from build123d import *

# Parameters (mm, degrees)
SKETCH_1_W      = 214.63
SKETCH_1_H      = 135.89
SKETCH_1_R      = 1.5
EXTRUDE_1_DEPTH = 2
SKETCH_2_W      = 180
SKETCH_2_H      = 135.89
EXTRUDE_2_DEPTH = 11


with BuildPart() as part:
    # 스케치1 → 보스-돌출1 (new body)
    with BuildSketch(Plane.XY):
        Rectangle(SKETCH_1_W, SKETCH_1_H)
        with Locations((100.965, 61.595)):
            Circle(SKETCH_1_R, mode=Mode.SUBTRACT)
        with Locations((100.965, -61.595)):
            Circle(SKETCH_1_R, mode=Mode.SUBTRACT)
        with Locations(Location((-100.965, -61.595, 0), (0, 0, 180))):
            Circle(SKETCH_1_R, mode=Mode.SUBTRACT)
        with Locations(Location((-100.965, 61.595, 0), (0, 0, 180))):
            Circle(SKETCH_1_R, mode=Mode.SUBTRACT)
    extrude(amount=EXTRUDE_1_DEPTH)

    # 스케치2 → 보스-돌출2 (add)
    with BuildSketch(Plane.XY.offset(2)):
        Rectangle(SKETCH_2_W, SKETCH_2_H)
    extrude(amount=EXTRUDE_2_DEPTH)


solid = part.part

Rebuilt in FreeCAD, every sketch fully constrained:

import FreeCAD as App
import Part
import Sketcher

V = App.Vector
Q = App.Units.Quantity


def add_polygon(sketch, points):
    """Adds a closed chain of lines whose ends are joined by coincident constraints."""
    first, n = sketch.GeometryCount, len(points)
    for a, b in zip(points, points[1:] + points[:1]):
        sketch.addGeometry(Part.LineSegment(App.Vector(*a, 0), App.Vector(*b, 0)), False)
    for i in range(n):
        sketch.addConstraint(Sketcher.Constraint("Coincident", first + i, 2, first + (i + 1) % n, 1))

doc = App.newDocument("Part")
body = doc.addObject("PartDesign::Body", "Body")

# Sketch on XY plane
sketch1 = body.newObject("Sketcher::SketchObject", "Sketch")
sketch1.AttachmentSupport = (doc.getObject("XY_Plane"), [""])
sketch1.MapMode = "FlatFace"
add_polygon(sketch1, [(-107.3, 67.9), (-107.3, -67.9), (107.3, -67.9), (107.3, 67.9)])  # lines 0-3
sketch1.addGeometry(Part.Circle(V(-101, -61.6, 0), V(0, 0, 1), 1.5), False)  # 4
sketch1.addGeometry(Part.Circle(V(101, -61.6, 0), V(0, 0, 1), 1.5), False)  # 5
sketch1.addGeometry(Part.Circle(V(-101, 61.6, 0), V(0, 0, 1), 1.5), False)  # 6
sketch1.addGeometry(Part.Circle(V(101, 61.6, 0), V(0, 0, 1), 1.5), False)  # 7
sketch1.addConstraint([
    Sketcher.Constraint("Vertical", 0),
    Sketcher.Constraint("Horizontal", 1),
    Sketcher.Constraint("Vertical", 2),
    Sketcher.Constraint("Horizontal", 3),
    Sketcher.Constraint("Equal", 4, 5),
    Sketcher.Constraint("Equal", 5, 6),
    Sketcher.Constraint("Equal", 6, 7),
    Sketcher.Constraint("Symmetric", 5, 3, 6, 3, -1, 1),
    Sketcher.Constraint("Symmetric", 4, 3, 7, 3, -1, 1),
    Sketcher.Constraint("Symmetric", 0, 2, 2, 2, -1, 1),
    Sketcher.Constraint("Symmetric", 4, 3, 5, 3, -2),
    Sketcher.Constraint("Diameter", 4, Q("3 mm")),
    Sketcher.Constraint("DistanceX", 1, 1, 1, 2, Q("214.63 mm")),
    Sketcher.Constraint("DistanceY", 0, 2, 0, 1, Q("135.89 mm")),
    Sketcher.Constraint("DistanceX", 4, 3, 5, 3, Q("201.93 mm")),
    Sketcher.Constraint("DistanceY", 4, 3, 6, 3, Q("123.19 mm")),
])
pad1 = body.newObject("PartDesign::Pad", "Pad")
pad1.Profile = sketch1
pad1.Length = 2

# Sketch on XY plane
sketch2 = body.newObject("Sketcher::SketchObject", "Sketch001")
sketch2.AttachmentSupport = (doc.getObject("XY_Plane"), [""])
sketch2.MapMode = "FlatFace"
sketch2.AttachmentOffset = App.Placement(V(0, 0, 2), App.Rotation())
add_polygon(sketch2, [(-90, 68), (-90, -68), (90, -68), (90, 68)])  # lines 0-3
sketch2.addConstraint([
    Sketcher.Constraint("Vertical", 0),
    Sketcher.Constraint("Horizontal", 1),
    Sketcher.Constraint("Vertical", 2),
    Sketcher.Constraint("Horizontal", 3),
    Sketcher.Constraint("Symmetric", 0, 2, 2, 2, -1, 1),
    Sketcher.Constraint("DistanceX", 1, 1, 1, 2, Q("180 mm")),
    Sketcher.Constraint("DistanceY", 0, 2, 0, 1, Q("135.89 mm")),
])
pad2 = body.newObject("PartDesign::Pad", "Pad001")
pad2.Profile = sketch2
pad2.Length = 11

doc.recompute()
